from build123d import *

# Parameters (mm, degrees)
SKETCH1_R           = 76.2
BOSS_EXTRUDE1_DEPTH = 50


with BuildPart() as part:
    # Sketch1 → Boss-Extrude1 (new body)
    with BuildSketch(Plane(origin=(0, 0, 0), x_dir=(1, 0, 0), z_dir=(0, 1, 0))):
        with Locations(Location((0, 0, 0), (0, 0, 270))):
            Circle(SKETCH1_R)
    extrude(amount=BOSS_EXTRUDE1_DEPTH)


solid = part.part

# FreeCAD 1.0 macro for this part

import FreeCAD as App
import Part
import Sketcher
from FreeCAD import Vector

doc = App.newDocument("Part")
body = doc.addObject("PartDesign::Body", "Body")

sketch1 = body.newObject("Sketcher::SketchObject", "Sketch")
sketch1.AttachmentSupport = (doc.getObject("XZ_Plane"), [""])
sketch1.MapMode = "FlatFace"
sketch1.addGeometry(Part.Circle(Vector(0, 0, 0), Vector(0, 0, 1), 76), False)
sketch1.addConstraint([
    Sketcher.Constraint("Coincident", 0, 3, -1, 1),
    Sketcher.Constraint("Diameter", 0, 152.4),
])
pad1 = body.newObject("PartDesign::Pad", "Pad")
pad1.Profile = sketch1
pad1.Length = 50
pad1.Reversed = True

doc.recompute()
